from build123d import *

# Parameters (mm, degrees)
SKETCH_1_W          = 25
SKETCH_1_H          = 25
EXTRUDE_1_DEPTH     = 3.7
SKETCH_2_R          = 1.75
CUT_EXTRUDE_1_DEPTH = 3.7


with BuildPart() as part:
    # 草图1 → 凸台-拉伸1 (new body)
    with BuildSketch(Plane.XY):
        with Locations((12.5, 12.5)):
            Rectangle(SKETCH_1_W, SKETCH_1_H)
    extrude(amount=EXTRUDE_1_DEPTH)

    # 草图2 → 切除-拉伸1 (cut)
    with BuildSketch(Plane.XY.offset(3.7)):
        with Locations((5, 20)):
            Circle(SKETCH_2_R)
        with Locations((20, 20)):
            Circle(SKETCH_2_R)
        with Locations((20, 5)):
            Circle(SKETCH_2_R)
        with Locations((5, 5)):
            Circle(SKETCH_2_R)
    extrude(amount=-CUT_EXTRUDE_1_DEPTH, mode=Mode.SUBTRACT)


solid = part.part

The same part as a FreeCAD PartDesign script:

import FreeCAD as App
import Part
import Sketcher

V = App.Vector
Q = App.Units.Quantity


def add_polygon(sketch, points):
    """Adds a closed chain of lines whose ends are joined by coincident constraints."""
    first, n = sketch.GeometryCount, len(points)
    for a, b in zip(points, points[1:] + points[:1]):
        sketch.addGeometry(Part.LineSegment(App.Vector(*a, 0), App.Vector(*b, 0)), False)
    for i in range(n):
        sketch.addConstraint(Sketcher.Constraint("Coincident", first + i, 2, first + (i + 1) % n, 1))

doc = App.newDocument("Part")
body = doc.addObject("PartDesign::Body", "Body")

# Sketch on XY plane
sketch1 = doc.addObject("Sketcher::SketchObject", "Sketch")
body.addObject(sketch1)
sketch1.AttachmentSupport = (doc.XY_Plane, [""])
sketch1.MapMode = "FlatFace"
add_polygon(sketch1, [(0, 25), (0, 0), (25, 0), (25, 25)])  # lines 0-3
sketch1.addConstraint([
    Sketcher.Constraint("Vertical", 0),
    Sketcher.Constraint("Horizontal", 1),
    Sketcher.Constraint("Vertical", 2),
    Sketcher.Constraint("Horizontal", 3),
    Sketcher.Constraint("Coincident", 0, 2, -1, 1),
    Sketcher.Constraint("Equal", 3, 0),
    Sketcher.Constraint("DistanceX", 1, 1, 1, 2, Q("25 mm")),
])
pad1 = doc.addObject("PartDesign::Pad", "Pad")
body.addObject(pad1)
pad1.Profile = sketch1
pad1.Length = 3.7

# Sketch on XY plane
sketch2 = doc.addObject("Sketcher::SketchObject", "Sketch001")
body.addObject(sketch2)
sketch2.AttachmentSupport = (doc.XY_Plane, [""])
sketch2.MapMode = "FlatFace"
sketch2.AttachmentOffset = App.Placement(V(0, 0, 3.7), App.Rotation())
sketch2.addGeometry([
    Part.Circle(V(5, 20, 0), V(0, 0, 1), 1.8),
    Part.Circle(V(20, 20, 0), V(0, 0, 1), 1.8),
    Part.Circle(V(20, 5, 0), V(0, 0, 1), 1.8),
    Part.Circle(V(5, 5, 0), V(0, 0, 1), 1.8),
], False)
sketch2.addConstraint([
    Sketcher.Constraint("Equal", 0, 1),
    Sketcher.Constraint("Equal", 1, 2),
    Sketcher.Constraint("Equal", 2, 3),
    Sketcher.Constraint("Horizontal", 0, 3, 1, 3),
    Sketcher.Constraint("Horizontal", 2, 3, 3, 3),
    Sketcher.Constraint("Vertical", 1, 3, 2, 3),
    Sketcher.Constraint("Vertical", 0, 3, 3, 3),
    Sketcher.Constraint("Diameter", 0, Q("3.5 mm")),
    Sketcher.Constraint("DistanceX", -1, 1, 0, 3, Q("5 mm")),
    Sketcher.Constraint("DistanceY", -1, 1, 0, 3, Q("20 mm")),
    Sketcher.Constraint("DistanceX", -1, 1, 1, 3, Q("20 mm")),
    Sketcher.Constraint("DistanceY", -1, 1, 2, 3, Q("5 mm")),
])
pocket1 = doc.addObject("PartDesign::Pocket", "Pocket")
body.addObject(pocket1)
pocket1.Profile = sketch2
pocket1.Length = 3.7

doc.recompute()
